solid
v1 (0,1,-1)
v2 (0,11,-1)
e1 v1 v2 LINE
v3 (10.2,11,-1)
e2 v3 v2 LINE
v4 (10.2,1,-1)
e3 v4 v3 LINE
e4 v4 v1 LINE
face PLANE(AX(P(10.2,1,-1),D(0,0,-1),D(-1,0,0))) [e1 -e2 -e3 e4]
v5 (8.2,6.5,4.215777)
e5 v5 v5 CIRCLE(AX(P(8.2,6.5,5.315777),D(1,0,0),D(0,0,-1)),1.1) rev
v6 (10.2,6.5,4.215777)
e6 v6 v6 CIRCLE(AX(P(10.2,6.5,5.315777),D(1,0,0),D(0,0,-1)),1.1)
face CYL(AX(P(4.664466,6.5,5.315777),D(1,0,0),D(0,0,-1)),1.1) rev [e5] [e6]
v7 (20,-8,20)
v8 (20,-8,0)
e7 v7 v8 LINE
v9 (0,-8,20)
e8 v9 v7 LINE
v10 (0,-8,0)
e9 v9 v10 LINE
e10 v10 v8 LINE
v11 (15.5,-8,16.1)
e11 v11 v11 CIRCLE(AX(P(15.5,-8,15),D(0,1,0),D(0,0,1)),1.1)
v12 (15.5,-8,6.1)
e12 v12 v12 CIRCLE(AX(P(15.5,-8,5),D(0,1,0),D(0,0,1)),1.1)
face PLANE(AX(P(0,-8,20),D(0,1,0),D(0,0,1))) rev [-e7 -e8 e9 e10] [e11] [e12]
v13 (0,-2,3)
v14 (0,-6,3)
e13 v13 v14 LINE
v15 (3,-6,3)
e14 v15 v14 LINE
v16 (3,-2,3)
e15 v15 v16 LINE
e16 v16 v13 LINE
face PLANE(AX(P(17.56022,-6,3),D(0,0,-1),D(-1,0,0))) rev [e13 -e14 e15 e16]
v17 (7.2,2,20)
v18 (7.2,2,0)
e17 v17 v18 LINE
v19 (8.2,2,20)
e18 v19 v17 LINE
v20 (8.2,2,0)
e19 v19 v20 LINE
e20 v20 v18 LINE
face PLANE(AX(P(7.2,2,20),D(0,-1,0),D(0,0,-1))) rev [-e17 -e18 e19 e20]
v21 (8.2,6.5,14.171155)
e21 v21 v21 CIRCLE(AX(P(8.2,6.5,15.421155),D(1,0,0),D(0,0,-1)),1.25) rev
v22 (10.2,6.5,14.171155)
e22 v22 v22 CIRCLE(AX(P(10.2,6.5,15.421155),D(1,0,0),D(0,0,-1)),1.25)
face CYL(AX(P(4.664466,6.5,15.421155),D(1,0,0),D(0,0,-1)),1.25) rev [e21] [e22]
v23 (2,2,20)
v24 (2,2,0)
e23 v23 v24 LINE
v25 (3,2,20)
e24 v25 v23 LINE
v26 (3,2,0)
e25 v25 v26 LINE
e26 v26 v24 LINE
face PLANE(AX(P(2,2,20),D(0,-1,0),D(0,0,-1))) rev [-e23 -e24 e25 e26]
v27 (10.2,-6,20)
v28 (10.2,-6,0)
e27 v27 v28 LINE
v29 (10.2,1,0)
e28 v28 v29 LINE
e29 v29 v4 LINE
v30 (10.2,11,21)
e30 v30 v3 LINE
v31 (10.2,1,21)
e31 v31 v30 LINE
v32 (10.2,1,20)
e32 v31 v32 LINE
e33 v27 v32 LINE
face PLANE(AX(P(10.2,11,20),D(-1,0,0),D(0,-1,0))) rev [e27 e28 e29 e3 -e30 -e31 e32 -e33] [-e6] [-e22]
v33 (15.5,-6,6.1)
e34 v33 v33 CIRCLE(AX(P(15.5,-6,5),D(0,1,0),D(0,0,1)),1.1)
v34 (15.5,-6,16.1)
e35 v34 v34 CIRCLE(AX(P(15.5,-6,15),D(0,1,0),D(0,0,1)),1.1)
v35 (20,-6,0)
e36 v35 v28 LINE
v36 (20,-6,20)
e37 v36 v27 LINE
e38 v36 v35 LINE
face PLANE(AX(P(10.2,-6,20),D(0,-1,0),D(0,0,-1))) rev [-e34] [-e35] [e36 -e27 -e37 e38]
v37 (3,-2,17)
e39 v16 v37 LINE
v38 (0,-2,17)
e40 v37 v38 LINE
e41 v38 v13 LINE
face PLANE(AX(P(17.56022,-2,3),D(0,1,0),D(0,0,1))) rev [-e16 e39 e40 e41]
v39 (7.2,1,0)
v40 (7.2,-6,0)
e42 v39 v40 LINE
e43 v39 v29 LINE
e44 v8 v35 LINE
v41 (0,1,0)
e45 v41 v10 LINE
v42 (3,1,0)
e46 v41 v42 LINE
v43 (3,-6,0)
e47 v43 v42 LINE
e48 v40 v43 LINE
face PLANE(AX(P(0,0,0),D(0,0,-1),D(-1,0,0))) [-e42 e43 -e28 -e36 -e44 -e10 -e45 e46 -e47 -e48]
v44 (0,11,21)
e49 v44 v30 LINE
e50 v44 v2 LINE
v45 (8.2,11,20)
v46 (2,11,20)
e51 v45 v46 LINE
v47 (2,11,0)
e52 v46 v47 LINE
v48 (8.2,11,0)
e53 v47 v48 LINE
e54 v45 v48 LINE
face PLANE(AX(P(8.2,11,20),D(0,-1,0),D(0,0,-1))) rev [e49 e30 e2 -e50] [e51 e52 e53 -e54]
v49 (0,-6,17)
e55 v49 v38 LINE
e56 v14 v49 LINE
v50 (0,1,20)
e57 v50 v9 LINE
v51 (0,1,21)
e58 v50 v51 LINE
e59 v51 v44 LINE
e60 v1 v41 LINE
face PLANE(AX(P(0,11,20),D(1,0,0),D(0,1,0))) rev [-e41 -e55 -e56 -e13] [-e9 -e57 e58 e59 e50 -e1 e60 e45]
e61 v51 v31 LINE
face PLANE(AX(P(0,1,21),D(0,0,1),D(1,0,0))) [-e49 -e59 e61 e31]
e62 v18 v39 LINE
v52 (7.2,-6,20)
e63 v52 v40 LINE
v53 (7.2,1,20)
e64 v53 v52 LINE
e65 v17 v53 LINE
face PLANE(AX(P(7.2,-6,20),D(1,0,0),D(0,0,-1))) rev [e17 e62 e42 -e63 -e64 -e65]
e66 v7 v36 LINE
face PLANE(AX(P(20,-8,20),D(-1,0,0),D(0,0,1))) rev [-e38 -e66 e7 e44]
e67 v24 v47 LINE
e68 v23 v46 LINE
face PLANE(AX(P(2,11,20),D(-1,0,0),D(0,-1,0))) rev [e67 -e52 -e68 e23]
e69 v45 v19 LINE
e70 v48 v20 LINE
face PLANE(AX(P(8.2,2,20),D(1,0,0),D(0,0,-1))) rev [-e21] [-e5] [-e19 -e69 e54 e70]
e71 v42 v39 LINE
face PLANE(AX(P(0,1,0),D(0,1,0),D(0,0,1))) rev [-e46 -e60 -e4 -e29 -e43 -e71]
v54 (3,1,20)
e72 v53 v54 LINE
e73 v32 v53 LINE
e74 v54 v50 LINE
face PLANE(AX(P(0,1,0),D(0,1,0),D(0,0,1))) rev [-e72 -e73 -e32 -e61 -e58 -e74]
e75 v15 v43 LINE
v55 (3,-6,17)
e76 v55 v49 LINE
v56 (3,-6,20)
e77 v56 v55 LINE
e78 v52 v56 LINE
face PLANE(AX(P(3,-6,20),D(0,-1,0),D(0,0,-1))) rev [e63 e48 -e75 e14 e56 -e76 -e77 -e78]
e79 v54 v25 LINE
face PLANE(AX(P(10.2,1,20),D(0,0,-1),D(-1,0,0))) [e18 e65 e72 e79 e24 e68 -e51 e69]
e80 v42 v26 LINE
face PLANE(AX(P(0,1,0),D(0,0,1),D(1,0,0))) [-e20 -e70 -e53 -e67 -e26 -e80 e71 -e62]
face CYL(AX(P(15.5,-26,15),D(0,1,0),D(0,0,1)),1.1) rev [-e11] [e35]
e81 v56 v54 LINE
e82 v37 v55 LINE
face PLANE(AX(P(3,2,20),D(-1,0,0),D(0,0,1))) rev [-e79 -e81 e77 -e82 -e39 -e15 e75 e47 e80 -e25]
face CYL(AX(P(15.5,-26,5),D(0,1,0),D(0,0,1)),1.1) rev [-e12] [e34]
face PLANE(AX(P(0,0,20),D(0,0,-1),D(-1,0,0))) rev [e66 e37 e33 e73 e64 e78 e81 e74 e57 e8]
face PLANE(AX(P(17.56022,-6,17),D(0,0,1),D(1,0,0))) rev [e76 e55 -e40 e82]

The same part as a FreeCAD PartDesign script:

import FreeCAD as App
import Part
import Sketcher

doc = App.newDocument("Part")
body = doc.addObject("PartDesign::Body", "Body")

# Sketch on XY plane
sketch1 = body.newObject("Sketcher::SketchObject", "Sketch")
sketch1.AttachmentSupport = (doc.getObject("XY_Plane"), [""])
sketch1.MapMode = "FlatFace"
sketch1.addGeometry([
    Part.LineSegment(App.Vector(0, 11, 0), App.Vector(0, -8, 0)),  # 0
    Part.LineSegment(App.Vector(0, -8, 0), App.Vector(20, -8, 0)),  # 1
    Part.LineSegment(App.Vector(20, -8, 0), App.Vector(20, -6, 0)),  # 2
    Part.LineSegment(App.Vector(20, -6, 0), App.Vector(10.2, -6, 0)),  # 3
    Part.LineSegment(App.Vector(10.2, -6, 0), App.Vector(10.2, 11, 0)),  # 4
    Part.LineSegment(App.Vector(10.2, 11, 0), App.Vector(8.2, 11, 0)),  # 5
    Part.LineSegment(App.Vector(8.2, 11, 0), App.Vector(8.2, 2, 0)),  # 6
    Part.LineSegment(App.Vector(8.2, 2, 0), App.Vector(7.2, 2, 0)),  # 7
    Part.LineSegment(App.Vector(7.2, 2, 0), App.Vector(7.2, -6, 0)),  # 8
    Part.LineSegment(App.Vector(7.2, -6, 0), App.Vector(3, -6, 0)),  # 9
    Part.LineSegment(App.Vector(3, -6, 0), App.Vector(3, 2, 0)),  # 10
    Part.LineSegment(App.Vector(3, 2, 0), App.Vector(2, 2, 0)),  # 11
    Part.LineSegment(App.Vector(2, 2, 0), App.Vector(2, 11, 0)),  # 12
    Part.LineSegment(App.Vector(2, 11, 0), App.Vector(0, 11, 0)),  # 13
], False)
sketch1.addConstraint([
    Sketcher.Constraint("Coincident", 0, 2, 1, 1),
    Sketcher.Constraint("Coincident", 1, 2, 2, 1),
    Sketcher.Constraint("Coincident", 2, 2, 3, 1),
    Sketcher.Constraint("Coincident", 3, 2, 4, 1),
    Sketcher.Constraint("Coincident", 4, 2, 5, 1),
    Sketcher.Constraint("Coincident", 5, 2, 6, 1),
    Sketcher.Constraint("Coincident", 6, 2, 7, 1),
    Sketcher.Constraint("Coincident", 7, 2, 8, 1),
    Sketcher.Constraint("Coincident", 8, 2, 9, 1),
    Sketcher.Constraint("Coincident", 9, 2, 10, 1),
    Sketcher.Constraint("Coincident", 10, 2, 11, 1),
    Sketcher.Constraint("Coincident", 11, 2, 12, 1),
    Sketcher.Constraint("Coincident", 12, 2, 13, 1),
    Sketcher.Constraint("Coincident", 13, 2, 0, 1),
    Sketcher.Constraint("Vertical", 0),
    Sketcher.Constraint("Horizontal", 1),
    Sketcher.Constraint("Vertical", 2),
    Sketcher.Constraint("Horizontal", 3),
    Sketcher.Constraint("Vertical", 4),
    Sketcher.Constraint("Horizontal", 5),
    Sketcher.Constraint("Vertical", 6),
    Sketcher.Constraint("Horizontal", 7),
    Sketcher.Constraint("Vertical", 8),
    Sketcher.Constraint("Horizontal", 9),
    Sketcher.Constraint("Vertical", 10),
    Sketcher.Constraint("Horizontal", 11),
    Sketcher.Constraint("Vertical", 12),
    Sketcher.Constraint("Horizontal", 13),
    Sketcher.Constraint("PointOnObject", 0, 2, -2),
    Sketcher.Constraint("Horizontal", 3, 2, 8, 2),
    Sketcher.Constraint("Horizontal", 7, 2, 10, 2),
    Sketcher.Constraint("Horizontal", 5, 2, 12, 2),
    Sketcher.Constraint("Equal", 7, 11),
    Sketcher.Constraint("Equal", 5, 13),
    Sketcher.Constraint("Equal", 13, 2),
    Sketcher.Constraint("DistanceX", 1, 1, 1, 2, 20.0),
    Sketcher.Constraint("DistanceX", 5, 2, 5, 1, 2.0),
    Sketcher.Constraint("DistanceX", 7, 2, 7, 1, 1.0),
    Sketcher.Constraint("DistanceY", 0, 2, 0, 1, 19.0),
    Sketcher.Constraint("DistanceY", 6, 2, 6, 1, 9.0),
    Sketcher.Constraint("DistanceX", 3, 2, 3, 1, 9.8),
    Sketcher.Constraint("DistanceY", 0, 2, -1, 1, 8.0),
])
pad1 = body.newObject("PartDesign::Pad", "Pad")
pad1.Profile = sketch1
pad1.Length = 20

# Sketch on YZ plane
sketch2 = body.newObject("Sketcher::SketchObject", "Sketch001")
sketch2.AttachmentSupport = (doc.getObject("YZ_Plane"), [""])
sketch2.MapMode = "FlatFace"
sketch2.addGeometry([
    Part.LineSegment(App.Vector(-2, 3, 0), App.Vector(-6, 3, 0)),
    Part.LineSegment(App.Vector(-6, 3, 0), App.Vector(-6, 17, 0)),
    Part.LineSegment(App.Vector(-6, 17, 0), App.Vector(-2, 17, 0)),
    Part.LineSegment(App.Vector(-2, 17, 0), App.Vector(-2, 3, 0)),
], False)
sketch2.addConstraint([
    Sketcher.Constraint("Coincident", 0, 2, 1, 1),
    Sketcher.Constraint("Coincident", 1, 2, 2, 1),
    Sketcher.Constraint("Coincident", 2, 2, 3, 1),
    Sketcher.Constraint("Coincident", 3, 2, 0, 1),
    Sketcher.Constraint("Horizontal", 0),
    Sketcher.Constraint("Vertical", 1),
    Sketcher.Constraint("Horizontal", 2),
    Sketcher.Constraint("Vertical", 3),
    Sketcher.Constraint("DistanceX", 0, 2, 0, 1, 4.0),
    Sketcher.Constraint("DistanceY", 1, 1, 1, 2, 14.0),
    Sketcher.Constraint("DistanceX", 0, 2, -1, 1, 6.0),
    Sketcher.Constraint("DistanceY", -1, 1, 0, 2, 3.0),
])
pocket1 = body.newObject("PartDesign::Pocket", "Pocket")
pocket1.Profile = sketch2
pocket1.Length = 3
pocket1.Reversed = True

# Sketch on XZ plane
sketch3 = body.newObject("Sketcher::SketchObject", "Sketch002")
sketch3.AttachmentSupport = (doc.getObject("XZ_Plane"), [""])
sketch3.MapMode = "FlatFace"
sketch3.AttachmentOffset = App.Placement(App.Vector(0, 0, 6), App.Rotation())
sketch3.addGeometry([
    Part.Circle(App.Vector(15.5, 5, 0), App.Vector(0, 0, 1), 1.1),
    Part.Circle(App.Vector(15.5, 15, 0), App.Vector(0, 0, 1), 1.1),
], False)
sketch3.addConstraint([
    Sketcher.Constraint("Equal", 0, 1),
    Sketcher.Constraint("Vertical", 0, 3, 1, 3),
    Sketcher.Constraint("Diameter", 0, 2.2),
    Sketcher.Constraint("DistanceY", -1, 1, 0, 3, 5.0),
    Sketcher.Constraint("DistanceY", -1, 1, 1, 3, 15.0),
    Sketcher.Constraint("DistanceX", -1, 1, 0, 3, 15.5),
])
pocket2 = body.newObject("PartDesign::Pocket", "Pocket001")
pocket2.Profile = sketch3
pocket2.Length = 20
pocket2.Reversed = True

# Sketch on YZ plane
sketch4 = body.newObject("Sketcher::SketchObject", "Sketch003")
sketch4.AttachmentSupport = (doc.getObject("YZ_Plane"), [""])
sketch4.MapMode = "FlatFace"
sketch4.AttachmentOffset = App.Placement(App.Vector(0, 0, 10.2), App.Rotation())
sketch4.addGeometry([
    Part.Circle(App.Vector(6.5, 15.4, 0), App.Vector(0, 0, 1), 1.2),
    Part.Circle(App.Vector(6.5, 5.3, 0), App.Vector(0, 0, 1), 1.1),
], False)
sketch4.addConstraint([
    Sketcher.Constraint("Vertical", 0, 3, 1, 3),
    Sketcher.Constraint("Diameter", 0, 2.5),
    Sketcher.Constraint("Diameter", 1, 2.2),
    Sketcher.Constraint("DistanceX", -1, 1, 0, 3, 6.5),
    Sketcher.Constraint("DistanceY", -1, 1, 0, 3, 15.421155),
    Sketcher.Constraint("DistanceY", -1, 1, 1, 3, 5.315777),
])
pocket3 = body.newObject("PartDesign::Pocket", "Pocket002")
pocket3.Profile = sketch4
pocket3.Length = 2

# Sketch on XZ plane
sketch5 = body.newObject("Sketcher::SketchObject", "Sketch004")
sketch5.AttachmentSupport = (doc.getObject("XZ_Plane"), [""])
sketch5.MapMode = "FlatFace"
sketch5.AttachmentOffset = App.Placement(App.Vector(0, 0, -11), App.Rotation())
sketch5.addGeometry([
    Part.LineSegment(App.Vector(0, -1, 0), App.Vector(0, 0, 0)),  # 0
    Part.LineSegment(App.Vector(0, 0, 0), App.Vector(10.2, 0, 0)),  # 1
    Part.LineSegment(App.Vector(10.2, 0, 0), App.Vector(10.2, -1, 0)),  # 2
    Part.LineSegment(App.Vector(10.2, -1, 0), App.Vector(0, -1, 0)),  # 3
    Part.LineSegment(App.Vector(0, 20, 0), App.Vector(0, 21, 0)),  # 4
    Part.LineSegment(App.Vector(0, 21, 0), App.Vector(10.2, 21, 0)),  # 5
    Part.LineSegment(App.Vector(10.2, 21, 0), App.Vector(10.2, 20, 0)),  # 6
    Part.LineSegment(App.Vector(10.2, 20, 0), App.Vector(0, 20, 0)),  # 7
], False)
sketch5.addConstraint([
    Sketcher.Constraint("Coincident", 0, 2, 1, 1),
    Sketcher.Constraint("Coincident", 1, 2, 2, 1),
    Sketcher.Constraint("Coincident", 2, 2, 3, 1),
    Sketcher.Constraint("Coincident", 3, 2, 0, 1),
    Sketcher.Constraint("Coincident", 4, 2, 5, 1),
    Sketcher.Constraint("Coincident", 5, 2, 6, 1),
    Sketcher.Constraint("Coincident", 6, 2, 7, 1),
    Sketcher.Constraint("Coincident", 7, 2, 4, 1),
    Sketcher.Constraint("Vertical", 0),
    Sketcher.Constraint("Horizontal", 1),
    Sketcher.Constraint("Vertical", 2),
    Sketcher.Constraint("Horizontal", 3),
    Sketcher.Constraint("Vertical", 4),
    Sketcher.Constraint("Horizontal", 5),
    Sketcher.Constraint("Vertical", 6),
    Sketcher.Constraint("Horizontal", 7),
    Sketcher.Constraint("Coincident", 0, 2, -1, 1),
    Sketcher.Constraint("PointOnObject", 4, 2, -2),
    Sketcher.Constraint("Vertical", 2, 2, 5, 2),
    Sketcher.Constraint("Equal", 2, 4),
    Sketcher.Constraint("DistanceY", 0, 1, 0, 2, 1.0),
    Sketcher.Constraint("DistanceX", 1, 1, 1, 2, 10.2),
    Sketcher.Constraint("DistanceY", -1, 1, 4, 2, 21.0),
])
pad2 = body.newObject("PartDesign::Pad", "Pad001")
pad2.Profile = sketch5
pad2.Length = 10

doc.recompute()
